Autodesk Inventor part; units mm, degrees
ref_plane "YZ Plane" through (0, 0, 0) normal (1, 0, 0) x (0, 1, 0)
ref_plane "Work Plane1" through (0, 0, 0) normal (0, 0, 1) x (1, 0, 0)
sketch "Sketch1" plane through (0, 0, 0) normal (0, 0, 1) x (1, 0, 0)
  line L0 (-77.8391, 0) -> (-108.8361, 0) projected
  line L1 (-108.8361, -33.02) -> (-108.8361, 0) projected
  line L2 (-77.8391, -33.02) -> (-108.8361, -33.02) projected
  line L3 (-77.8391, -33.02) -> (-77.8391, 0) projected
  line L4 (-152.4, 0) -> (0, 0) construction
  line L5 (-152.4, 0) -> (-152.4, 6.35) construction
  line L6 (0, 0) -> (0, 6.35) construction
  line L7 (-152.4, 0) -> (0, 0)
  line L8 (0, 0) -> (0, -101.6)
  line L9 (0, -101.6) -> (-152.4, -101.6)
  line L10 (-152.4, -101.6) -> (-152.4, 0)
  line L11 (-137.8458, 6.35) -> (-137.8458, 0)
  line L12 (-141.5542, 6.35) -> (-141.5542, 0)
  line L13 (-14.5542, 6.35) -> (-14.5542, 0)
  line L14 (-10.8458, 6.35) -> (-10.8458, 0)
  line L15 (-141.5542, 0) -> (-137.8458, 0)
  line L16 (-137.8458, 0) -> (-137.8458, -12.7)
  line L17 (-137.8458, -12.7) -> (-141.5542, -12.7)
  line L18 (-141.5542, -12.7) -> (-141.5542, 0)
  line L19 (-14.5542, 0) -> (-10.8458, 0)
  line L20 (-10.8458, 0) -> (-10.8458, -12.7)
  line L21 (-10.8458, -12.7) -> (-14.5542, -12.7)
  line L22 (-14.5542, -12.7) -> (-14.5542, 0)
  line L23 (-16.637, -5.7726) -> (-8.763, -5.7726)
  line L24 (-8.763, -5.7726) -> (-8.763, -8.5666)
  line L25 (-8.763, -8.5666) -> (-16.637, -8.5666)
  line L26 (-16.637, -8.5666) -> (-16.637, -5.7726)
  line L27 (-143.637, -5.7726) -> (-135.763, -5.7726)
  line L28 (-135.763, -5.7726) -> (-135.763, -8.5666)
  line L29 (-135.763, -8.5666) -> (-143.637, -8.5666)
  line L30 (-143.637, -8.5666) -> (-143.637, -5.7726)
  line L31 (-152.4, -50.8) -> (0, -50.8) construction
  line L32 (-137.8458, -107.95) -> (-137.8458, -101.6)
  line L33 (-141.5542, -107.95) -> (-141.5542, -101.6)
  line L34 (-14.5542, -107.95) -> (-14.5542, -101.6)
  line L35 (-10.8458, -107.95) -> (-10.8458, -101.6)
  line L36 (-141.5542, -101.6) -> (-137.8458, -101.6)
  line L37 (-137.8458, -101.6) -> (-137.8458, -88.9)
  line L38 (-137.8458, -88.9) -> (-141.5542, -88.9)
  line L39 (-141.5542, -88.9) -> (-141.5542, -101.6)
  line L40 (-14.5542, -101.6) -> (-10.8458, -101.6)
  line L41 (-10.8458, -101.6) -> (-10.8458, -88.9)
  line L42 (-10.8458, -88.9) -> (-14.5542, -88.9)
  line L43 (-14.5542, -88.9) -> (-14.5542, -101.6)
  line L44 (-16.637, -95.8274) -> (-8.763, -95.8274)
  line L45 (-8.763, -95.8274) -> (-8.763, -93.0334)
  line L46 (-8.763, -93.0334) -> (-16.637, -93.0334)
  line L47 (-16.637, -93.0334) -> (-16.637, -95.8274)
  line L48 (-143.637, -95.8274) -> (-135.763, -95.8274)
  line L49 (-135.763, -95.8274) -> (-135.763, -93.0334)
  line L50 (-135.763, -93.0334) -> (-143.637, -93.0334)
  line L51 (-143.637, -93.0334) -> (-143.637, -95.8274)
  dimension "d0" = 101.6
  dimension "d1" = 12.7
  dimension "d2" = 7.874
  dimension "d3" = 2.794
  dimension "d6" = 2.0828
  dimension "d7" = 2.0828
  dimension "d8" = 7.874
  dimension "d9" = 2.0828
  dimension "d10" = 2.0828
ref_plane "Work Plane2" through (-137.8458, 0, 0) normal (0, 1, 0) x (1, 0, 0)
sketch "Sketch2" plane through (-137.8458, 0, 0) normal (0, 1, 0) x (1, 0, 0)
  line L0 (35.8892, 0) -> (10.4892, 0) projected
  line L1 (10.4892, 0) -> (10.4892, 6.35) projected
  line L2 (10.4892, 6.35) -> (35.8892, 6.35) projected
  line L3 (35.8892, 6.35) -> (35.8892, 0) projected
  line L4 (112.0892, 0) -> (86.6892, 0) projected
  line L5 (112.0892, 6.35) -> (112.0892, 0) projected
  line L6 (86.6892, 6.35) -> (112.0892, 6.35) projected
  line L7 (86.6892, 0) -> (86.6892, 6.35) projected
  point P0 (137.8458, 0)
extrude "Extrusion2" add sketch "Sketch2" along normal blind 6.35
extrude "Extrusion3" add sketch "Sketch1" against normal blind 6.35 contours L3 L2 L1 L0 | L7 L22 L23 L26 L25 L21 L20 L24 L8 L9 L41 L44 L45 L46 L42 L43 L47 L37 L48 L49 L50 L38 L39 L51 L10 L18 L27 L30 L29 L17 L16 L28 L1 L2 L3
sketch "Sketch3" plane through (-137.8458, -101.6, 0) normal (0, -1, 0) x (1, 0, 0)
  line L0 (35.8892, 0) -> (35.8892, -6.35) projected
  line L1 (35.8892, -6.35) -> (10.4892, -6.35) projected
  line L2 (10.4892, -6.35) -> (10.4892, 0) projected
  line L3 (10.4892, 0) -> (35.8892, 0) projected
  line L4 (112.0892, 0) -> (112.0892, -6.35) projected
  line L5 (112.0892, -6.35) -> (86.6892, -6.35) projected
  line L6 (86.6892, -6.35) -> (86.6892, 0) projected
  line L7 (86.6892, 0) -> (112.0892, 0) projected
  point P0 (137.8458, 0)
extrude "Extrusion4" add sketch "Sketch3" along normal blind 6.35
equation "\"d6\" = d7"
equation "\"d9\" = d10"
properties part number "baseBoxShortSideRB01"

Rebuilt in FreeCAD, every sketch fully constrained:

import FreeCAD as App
import Part
import Sketcher

V = App.Vector
Q = App.Units.Quantity

doc = App.newDocument("Part")
body = doc.addObject("PartDesign::Body", "Body")
body.AllowCompound = True

# Sketch on XZ plane
sketch1 = body.newObject("Sketcher::SketchObject", "Sketch")
sketch1.AttachmentSupport = (doc.getObject("XZ_Plane"), [""])
sketch1.MapMode = "FlatFace"
sketch1.addGeometry([
    Part.LineSegment(V(-127, 0, 0), V(-102, 0, 0)),  # 0
    Part.LineSegment(V(-102, 0, 0), V(-102, -6, 0)),  # 1
    Part.LineSegment(V(-102, -6, 0), V(-127, -6, 0)),  # 2
    Part.LineSegment(V(-127, -6, 0), V(-127, 0, 0)),  # 3
    Part.LineSegment(V(-51, 0, 0), V(-26, 0, 0)),  # 4
    Part.LineSegment(V(-26, 0, 0), V(-26, -6, 0)),  # 5
    Part.LineSegment(V(-26, -6, 0), V(-51, -6, 0)),  # 6
    Part.LineSegment(V(-51, -6, 0), V(-51, 0, 0)),  # 7
], False)
sketch1.addConstraint([
    Sketcher.Constraint("Coincident", 0, 2, 1, 1),
    Sketcher.Constraint("Coincident", 1, 2, 2, 1),
    Sketcher.Constraint("Coincident", 2, 2, 3, 1),
    Sketcher.Constraint("Coincident", 3, 2, 0, 1),
    Sketcher.Constraint("Coincident", 4, 2, 5, 1),
    Sketcher.Constraint("Coincident", 5, 2, 6, 1),
    Sketcher.Constraint("Coincident", 6, 2, 7, 1),
    Sketcher.Constraint("Coincident", 7, 2, 4, 1),
    Sketcher.Constraint("Horizontal", 0),
    Sketcher.Constraint("Vertical", 1),
    Sketcher.Constraint("Horizontal", 2),
    Sketcher.Constraint("Vertical", 3),
    Sketcher.Constraint("Horizontal", 4),
    Sketcher.Constraint("Vertical", 5),
    Sketcher.Constraint("Horizontal", 6),
    Sketcher.Constraint("Vertical", 7),
    Sketcher.Constraint("PointOnObject", 0, 2, -1),
    Sketcher.Constraint("PointOnObject", 4, 2, -1),
    Sketcher.Constraint("Horizontal", 2, 2, 5, 2),
    Sketcher.Constraint("Equal", 2, 4),
    Sketcher.Constraint("DistanceX", 0, 1, 0, 2, Q("1 in")),
    Sketcher.Constraint("DistanceX", 0, 2, 4, 2, Q("3 in")),
    Sketcher.Constraint("DistanceY", 1, 2, 1, 1, Q("0.25 in")),
    Sketcher.Constraint("DistanceX", 0, 2, -1, 1, Q("101.9566 mm")),
])
pad1 = body.newObject("PartDesign::Pad", "Pad")
pad1.Profile = sketch1
pad1.Length = Q("0.25 in")
pad1.Reversed = True

# Sketch on XY plane
sketch2 = body.newObject("Sketcher::SketchObject", "Sketch001")
sketch2.AttachmentSupport = (doc.getObject("XY_Plane"), [""])
sketch2.MapMode = "FlatFace"
sketch2.addGeometry([
    Part.LineSegment(V(-137.8, 0, 0), V(-137.8, -5.8, 0)),  # 0
    Part.LineSegment(V(-137.8, -5.8, 0), V(-135.8, -5.8, 0)),  # 1
    Part.LineSegment(V(-135.8, -5.8, 0), V(-135.8, -8.6, 0)),  # 2
    Part.LineSegment(V(-135.8, -8.6, 0), V(-137.8, -8.6, 0)),  # 3
    Part.LineSegment(V(-137.8, -8.6, 0), V(-137.8, -12.7, 0)),  # 4
    Part.LineSegment(V(-137.8, -12.7, 0), V(-141.6, -12.7, 0)),  # 5
    Part.LineSegment(V(-141.6, -12.7, 0), V(-141.6, -8.6, 0)),  # 6
    Part.LineSegment(V(-141.6, -8.6, 0), V(-143.6, -8.6, 0)),  # 7
    Part.LineSegment(V(-143.6, -8.6, 0), V(-143.6, -5.8, 0)),  # 8
    Part.LineSegment(V(-143.6, -5.8, 0), V(-141.6, -5.8, 0)),  # 9
    Part.LineSegment(V(-141.6, -5.8, 0), V(-141.6, 0, 0)),  # 10
    Part.LineSegment(V(-141.6, 0, 0), V(-152.4, 0, 0)),  # 11
    Part.LineSegment(V(-152.4, 0, 0), V(-152.4, -101.6, 0)),  # 12
    Part.LineSegment(V(-152.4, -101.6, 0), V(-141.6, -101.6, 0)),  # 13
    Part.LineSegment(V(-141.6, -101.6, 0), V(-141.6, -95.8, 0)),  # 14
    Part.LineSegment(V(-141.6, -95.8, 0), V(-143.6, -95.8, 0)),  # 15
    Part.LineSegment(V(-143.6, -95.8, 0), V(-143.6, -93, 0)),  # 16
    Part.LineSegment(V(-143.6, -93, 0), V(-141.6, -93, 0)),  # 17
    Part.LineSegment(V(-141.6, -93, 0), V(-141.6, -88.9, 0)),  # 18
    Part.LineSegment(V(-141.6, -88.9, 0), V(-137.8, -88.9, 0)),  # 19
    Part.LineSegment(V(-137.8, -88.9, 0), V(-137.8, -93, 0)),  # 20
    Part.LineSegment(V(-137.8, -93, 0), V(-135.8, -93, 0)),  # 21
    Part.LineSegment(V(-135.8, -93, 0), V(-135.8, -95.8, 0)),  # 22
    Part.LineSegment(V(-135.8, -95.8, 0), V(-137.8, -95.8, 0)),  # 23
    Part.LineSegment(V(-137.8, -95.8, 0), V(-137.8, -101.6, 0)),  # 24
    Part.LineSegment(V(-137.8, -101.6, 0), V(-14.6, -101.6, 0)),  # 25
    Part.LineSegment(V(-14.6, -101.6, 0), V(-14.6, -95.8, 0)),  # 26
    Part.LineSegment(V(-14.6, -95.8, 0), V(-16.6, -95.8, 0)),  # 27
    Part.LineSegment(V(-16.6, -95.8, 0), V(-16.6, -93, 0)),  # 28
    Part.LineSegment(V(-16.6, -93, 0), V(-14.6, -93, 0)),  # 29
    Part.LineSegment(V(-14.6, -93, 0), V(-14.6, -88.9, 0)),  # 30
    Part.LineSegment(V(-14.6, -88.9, 0), V(-10.8, -88.9, 0)),  # 31
    Part.LineSegment(V(-10.8, -88.9, 0), V(-10.8, -93, 0)),  # 32
    Part.LineSegment(V(-10.8, -93, 0), V(-8.8, -93, 0)),  # 33
    Part.LineSegment(V(-8.8, -93, 0), V(-8.8, -95.8, 0)),  # 34
    Part.LineSegment(V(-8.8, -95.8, 0), V(-10.8, -95.8, 0)),  # 35
    Part.LineSegment(V(-10.8, -95.8, 0), V(-10.8, -101.6, 0)),  # 36
    Part.LineSegment(V(-10.8, -101.6, 0), V(0, -101.6, 0)),  # 37
    Part.LineSegment(V(0, -101.6, 0), V(0, 0, 0)),  # 38
    Part.LineSegment(V(0, 0, 0), V(-10.8, 0, 0)),  # 39
    Part.LineSegment(V(-10.8, 0, 0), V(-10.8, -5.8, 0)),  # 40
    Part.LineSegment(V(-10.8, -5.8, 0), V(-8.8, -5.8, 0)),  # 41
    Part.LineSegment(V(-8.8, -5.8, 0), V(-8.8, -8.6, 0)),  # 42
    Part.LineSegment(V(-8.8, -8.6, 0), V(-10.8, -8.6, 0)),  # 43
    Part.LineSegment(V(-10.8, -8.6, 0), V(-10.8, -12.7, 0)),  # 44
    Part.LineSegment(V(-10.8, -12.7, 0), V(-14.6, -12.7, 0)),  # 45
    Part.LineSegment(V(-14.6, -12.7, 0), V(-14.6, -8.6, 0)),  # 46
    Part.LineSegment(V(-14.6, -8.6, 0), V(-16.6, -8.6, 0)),  # 47
    Part.LineSegment(V(-16.6, -8.6, 0), V(-16.6, -5.8, 0)),  # 48
    Part.LineSegment(V(-16.6, -5.8, 0), V(-14.6, -5.8, 0)),  # 49
    Part.LineSegment(V(-14.6, -5.8, 0), V(-14.6, 0, 0)),  # 50
    Part.LineSegment(V(-14.6, 0, 0), V(-137.8, 0, 0)),  # 51
], False)
sketch2.addConstraint([
    Sketcher.Constraint("Coincident", 0, 2, 1, 1),
    Sketcher.Constraint("Coincident", 1, 2, 2, 1),
    Sketcher.Constraint("Coincident", 2, 2, 3, 1),
    Sketcher.Constraint("Coincident", 3, 2, 4, 1),
    Sketcher.Constraint("Coincident", 4, 2, 5, 1),
    Sketcher.Constraint("Coincident", 5, 2, 6, 1),
    Sketcher.Constraint("Coincident", 6, 2, 7, 1),
    Sketcher.Constraint("Coincident", 7, 2, 8, 1),
    Sketcher.Constraint("Coincident", 8, 2, 9, 1),
    Sketcher.Constraint("Coincident", 9, 2, 10, 1),
    Sketcher.Constraint("Coincident", 10, 2, 11, 1),
    Sketcher.Constraint("Coincident", 11, 2, 12, 1),
    Sketcher.Constraint("Coincident", 12, 2, 13, 1),
    Sketcher.Constraint("Coincident", 13, 2, 14, 1),
    Sketcher.Constraint("Coincident", 14, 2, 15, 1),
    Sketcher.Constraint("Coincident", 15, 2, 16, 1),
    Sketcher.Constraint("Coincident", 16, 2, 17, 1),
    Sketcher.Constraint("Coincident", 17, 2, 18, 1),
    Sketcher.Constraint("Coincident", 18, 2, 19, 1),
    Sketcher.Constraint("Coincident", 19, 2, 20, 1),
    Sketcher.Constraint("Coincident", 20, 2, 21, 1),
    Sketcher.Constraint("Coincident", 21, 2, 22, 1),
    Sketcher.Constraint("Coincident", 22, 2, 23, 1),
    Sketcher.Constraint("Coincident", 23, 2, 24, 1),
    Sketcher.Constraint("Coincident", 24, 2, 25, 1),
    Sketcher.Constraint("Coincident", 25, 2, 26, 1),
    Sketcher.Constraint("Coincident", 26, 2, 27, 1),
    Sketcher.Constraint("Coincident", 27, 2, 28, 1),
    Sketcher.Constraint("Coincident", 28, 2, 29, 1),
    Sketcher.Constraint("Coincident", 29, 2, 30, 1),
    Sketcher.Constraint("Coincident", 30, 2, 31, 1),
    Sketcher.Constraint("Coincident", 31, 2, 32, 1),
    Sketcher.Constraint("Coincident", 32, 2, 33, 1),
    Sketcher.Constraint("Coincident", 33, 2, 34, 1),
    Sketcher.Constraint("Coincident", 34, 2, 35, 1),
    Sketcher.Constraint("Coincident", 35, 2, 36, 1),
    Sketcher.Constraint("Coincident", 36, 2, 37, 1),
    Sketcher.Constraint("Coincident", 37, 2, 38, 1),
    Sketcher.Constraint("Coincident", 38, 2, 39, 1),
    Sketcher.Constraint("Coincident", 39, 2, 40, 1),
    Sketcher.Constraint("Coincident", 40, 2, 41, 1),
    Sketcher.Constraint("Coincident", 41, 2, 42, 1),
    Sketcher.Constraint("Coincident", 42, 2, 43, 1),
    Sketcher.Constraint("Coincident", 43, 2, 44, 1),
    Sketcher.Constraint("Coincident", 44, 2, 45, 1),
    Sketcher.Constraint("Coincident", 45, 2, 46, 1),
    Sketcher.Constraint("Coincident", 46, 2, 47, 1),
    Sketcher.Constraint("Coincident", 47, 2, 48, 1),
    Sketcher.Constraint("Coincident", 48, 2, 49, 1),
    Sketcher.Constraint("Coincident", 49, 2, 50, 1),
    Sketcher.Constraint("Coincident", 50, 2, 51, 1),
    Sketcher.Constraint("Coincident", 51, 2, 0, 1),
    Sketcher.Constraint("Vertical", 0),
    Sketcher.Constraint("Horizontal", 1),
    Sketcher.Constraint("Vertical", 2),
    Sketcher.Constraint("Horizontal", 3),
    Sketcher.Constraint("Vertical", 4),
    Sketcher.Constraint("Horizontal", 5),
    Sketcher.Constraint("Vertical", 6),
    Sketcher.Constraint("Horizontal", 7),
    Sketcher.Constraint("Vertical", 8),
    Sketcher.Constraint("Horizontal", 9),
    Sketcher.Constraint("Vertical", 10),
    Sketcher.Constraint("Horizontal", 11),
    Sketcher.Constraint("Vertical", 12),
    Sketcher.Constraint("Horizontal", 13),
    Sketcher.Constraint("Vertical", 14),
    Sketcher.Constraint("Horizontal", 15),
    Sketcher.Constraint("Vertical", 16),
    Sketcher.Constraint("Horizontal", 17),
    Sketcher.Constraint("Vertical", 18),
    Sketcher.Constraint("Horizontal", 19),
    Sketcher.Constraint("Vertical", 20),
    Sketcher.Constraint("Horizontal", 21),
    Sketcher.Constraint("Vertical", 22),
    Sketcher.Constraint("Horizontal", 23),
    Sketcher.Constraint("Vertical", 24),
    Sketcher.Constraint("Horizontal", 25),
    Sketcher.Constraint("Vertical", 26),
    Sketcher.Constraint("Horizontal", 27),
    Sketcher.Constraint("Vertical", 28),
    Sketcher.Constraint("Horizontal", 29),
    Sketcher.Constraint("Vertical", 30),
    Sketcher.Constraint("Horizontal", 31),
    Sketcher.Constraint("Vertical", 32),
    Sketcher.Constraint("Horizontal", 33),
    Sketcher.Constraint("Vertical", 34),
    Sketcher.Constraint("Horizontal", 35),
    Sketcher.Constraint("Vertical", 36),
    Sketcher.Constraint("Horizontal", 37),
    Sketcher.Constraint("Vertical", 38),
    Sketcher.Constraint("Horizontal", 39),
    Sketcher.Constraint("Vertical", 40),
    Sketcher.Constraint("Horizontal", 41),
    Sketcher.Constraint("Vertical", 42),
    Sketcher.Constraint("Horizontal", 43),
    Sketcher.Constraint("Vertical", 44),
    Sketcher.Constraint("Horizontal", 45),
    Sketcher.Constraint("Vertical", 46),
    Sketcher.Constraint("Horizontal", 47),
    Sketcher.Constraint("Vertical", 48),
    Sketcher.Constraint("Horizontal", 49),
    Sketcher.Constraint("Vertical", 50),
    Sketcher.Constraint("Horizontal", 51),
    Sketcher.Constraint("Coincident", 38, 2, -1, 1),
    Sketcher.Constraint("PointOnObject", 10, 2, -1),
    Sketcher.Constraint("PointOnObject", 50, 2, -1),
    Sketcher.Constraint("Horizontal", 3, 2, 6, 2),
    Sketcher.Constraint("Horizontal", 1, 2, 8, 2),
    Sketcher.Constraint("Horizontal", 17, 2, 20, 2),
    Sketcher.Constraint("Horizontal", 15, 2, 22, 2),
    Sketcher.Constraint("Horizontal", 13, 2, 24, 2),
    Sketcher.Constraint("Horizontal", 23, 2, 26, 2),
    Sketcher.Constraint("Horizontal", 21, 2, 28, 2),
    Sketcher.Constraint("Horizontal", 19, 2, 30, 2),
    Sketcher.Constraint("Horizontal", 29, 2, 32, 2),
    Sketcher.Constraint("Horizontal", 27, 2, 34, 2),
    Sketcher.Constraint("Horizontal", 25, 2, 36, 2),
    Sketcher.Constraint("Horizontal", 9, 2, 40, 2),
    Sketcher.Constraint("Horizontal", 7, 2, 42, 2),
    Sketcher.Constraint("Horizontal", 5, 2, 44, 2),
    Sketcher.Constraint("Horizontal", 43, 2, 46, 2),
    Sketcher.Constraint("Horizontal", 41, 2, 48, 2),
    Sketcher.Constraint("Vertical", 0, 2, 3, 2),
    Sketcher.Constraint("Vertical", 6, 2, 9, 2),
    Sketcher.Constraint("Vertical", 10, 2, 13, 2),
    Sketcher.Constraint("Vertical", 8, 2, 15, 2),
    Sketcher.Constraint("Vertical", 14, 2, 17, 2),
    Sketcher.Constraint("Vertical", 4, 2, 19, 2),
    Sketcher.Constraint("Vertical", 2, 2, 21, 2),
    Sketcher.Constraint("Vertical", 20, 2, 23, 2),
    Sketcher.Constraint("Vertical", 26, 2, 29, 2),
    Sketcher.Constraint("Vertical", 32, 2, 35, 2),
    Sketcher.Constraint("Vertical", 36, 2, 39, 2),
    Sketcher.Constraint("Vertical", 34, 2, 41, 2),
    Sketcher.Constraint("Vertical", 40, 2, 43, 2),
    Sketcher.Constraint("Vertical", 30, 2, 45, 2),
    Sketcher.Constraint("Vertical", 28, 2, 47, 2),
    Sketcher.Constraint("Vertical", 46, 2, 49, 2),
    Sketcher.Constraint("Equal", 3, 7),
    Sketcher.Constraint("Equal", 23, 27),
    Sketcher.Constraint("Equal", 19, 31),
    Sketcher.Constraint("Equal", 29, 33),
    Sketcher.Constraint("Equal", 13, 37),
    Sketcher.Constraint("Equal", 10, 14),
    Sketcher.Constraint("Equal", 8, 16),
    Sketcher.Constraint("Equal", 6, 18),
    Sketcher.Constraint("DistanceY", 12, 2, 12, 1, Q("4 in")),
    Sketcher.Constraint("DistanceY", 2, 2, 2, 1, Q("0.11 in")),
    Sketcher.Constraint("DistanceY", 4, 2, -1, 1, Q("0.5 in")),
    Sketcher.Constraint("DistanceX", 1, 1, 1, 2, Q("0.082 in")),
    Sketcher.Constraint("DistanceX", 11, 2, -1, 1, Q("6 in")),
    Sketcher.Constraint("DistanceX", 5, 2, 5, 1, Q("0.146 in")),
    Sketcher.Constraint("DistanceX", 11, 2, 11, 1, Q("0.427 in")),
    Sketcher.Constraint("DistanceY", 0, 2, 0, 1, Q("5.7726 mm")),
])
pad2 = body.newObject("PartDesign::Pad", "Pad001")
pad2.Profile = sketch2
pad2.Length = Q("0.25 in")
pad2.Reversed = True

# Sketch on XZ plane
sketch3 = body.newObject("Sketcher::SketchObject", "Sketch002")
sketch3.AttachmentSupport = (doc.getObject("XZ_Plane"), [""])
sketch3.MapMode = "FlatFace"
sketch3.AttachmentOffset = App.Placement(V(0, 0, 4 * 25.4), App.Rotation())
sketch3.addGeometry([
    Part.LineSegment(V(-102, -6, 0), V(-102, 0, 0)),  # 0
    Part.LineSegment(V(-102, 0, 0), V(-127, 0, 0)),  # 1
    Part.LineSegment(V(-127, 0, 0), V(-127, -6, 0)),  # 2
    Part.LineSegment(V(-127, -6, 0), V(-102, -6, 0)),  # 3
    Part.LineSegment(V(-26, -6, 0), V(-26, 0, 0)),  # 4
    Part.LineSegment(V(-26, 0, 0), V(-51, 0, 0)),  # 5
    Part.LineSegment(V(-51, 0, 0), V(-51, -6, 0)),  # 6
    Part.LineSegment(V(-51, -6, 0), V(-26, -6, 0)),  # 7
], False)
sketch3.addConstraint([
    Sketcher.Constraint("Coincident", 0, 2, 1, 1),
    Sketcher.Constraint("Coincident", 1, 2, 2, 1),
    Sketcher.Constraint("Coincident", 2, 2, 3, 1),
    Sketcher.Constraint("Coincident", 3, 2, 0, 1),
    Sketcher.Constraint("Coincident", 4, 2, 5, 1),
    Sketcher.Constraint("Coincident", 5, 2, 6, 1),
    Sketcher.Constraint("Coincident", 6, 2, 7, 1),
    Sketcher.Constraint("Coincident", 7, 2, 4, 1),
    Sketcher.Constraint("Vertical", 0),
    Sketcher.Constraint("Horizontal", 1),
    Sketcher.Constraint("Vertical", 2),
    Sketcher.Constraint("Horizontal", 3),
    Sketcher.Constraint("Vertical", 4),
    Sketcher.Constraint("Horizontal", 5),
    Sketcher.Constraint("Vertical", 6),
    Sketcher.Constraint("Horizontal", 7),
    Sketcher.Constraint("PointOnObject", 0, 2, -1),
    Sketcher.Constraint("PointOnObject", 4, 2, -1),
    Sketcher.Constraint("Horizontal", 3, 2, 6, 2),
    Sketcher.Constraint("Equal", 3, 5),
    Sketcher.Constraint("DistanceX", 1, 2, 1, 1, Q("1 in")),
    Sketcher.Constraint("DistanceX", 0, 2, 4, 2, Q("3 in")),
    Sketcher.Constraint("DistanceY", 0, 1, 0, 2, Q("0.25 in")),
    Sketcher.Constraint("DistanceX", 0, 2, -1, 1, Q("101.9566 mm")),
])
pad3 = body.newObject("PartDesign::Pad", "Pad002")
pad3.Profile = sketch3
pad3.Length = Q("0.25 in")

doc.recompute()
